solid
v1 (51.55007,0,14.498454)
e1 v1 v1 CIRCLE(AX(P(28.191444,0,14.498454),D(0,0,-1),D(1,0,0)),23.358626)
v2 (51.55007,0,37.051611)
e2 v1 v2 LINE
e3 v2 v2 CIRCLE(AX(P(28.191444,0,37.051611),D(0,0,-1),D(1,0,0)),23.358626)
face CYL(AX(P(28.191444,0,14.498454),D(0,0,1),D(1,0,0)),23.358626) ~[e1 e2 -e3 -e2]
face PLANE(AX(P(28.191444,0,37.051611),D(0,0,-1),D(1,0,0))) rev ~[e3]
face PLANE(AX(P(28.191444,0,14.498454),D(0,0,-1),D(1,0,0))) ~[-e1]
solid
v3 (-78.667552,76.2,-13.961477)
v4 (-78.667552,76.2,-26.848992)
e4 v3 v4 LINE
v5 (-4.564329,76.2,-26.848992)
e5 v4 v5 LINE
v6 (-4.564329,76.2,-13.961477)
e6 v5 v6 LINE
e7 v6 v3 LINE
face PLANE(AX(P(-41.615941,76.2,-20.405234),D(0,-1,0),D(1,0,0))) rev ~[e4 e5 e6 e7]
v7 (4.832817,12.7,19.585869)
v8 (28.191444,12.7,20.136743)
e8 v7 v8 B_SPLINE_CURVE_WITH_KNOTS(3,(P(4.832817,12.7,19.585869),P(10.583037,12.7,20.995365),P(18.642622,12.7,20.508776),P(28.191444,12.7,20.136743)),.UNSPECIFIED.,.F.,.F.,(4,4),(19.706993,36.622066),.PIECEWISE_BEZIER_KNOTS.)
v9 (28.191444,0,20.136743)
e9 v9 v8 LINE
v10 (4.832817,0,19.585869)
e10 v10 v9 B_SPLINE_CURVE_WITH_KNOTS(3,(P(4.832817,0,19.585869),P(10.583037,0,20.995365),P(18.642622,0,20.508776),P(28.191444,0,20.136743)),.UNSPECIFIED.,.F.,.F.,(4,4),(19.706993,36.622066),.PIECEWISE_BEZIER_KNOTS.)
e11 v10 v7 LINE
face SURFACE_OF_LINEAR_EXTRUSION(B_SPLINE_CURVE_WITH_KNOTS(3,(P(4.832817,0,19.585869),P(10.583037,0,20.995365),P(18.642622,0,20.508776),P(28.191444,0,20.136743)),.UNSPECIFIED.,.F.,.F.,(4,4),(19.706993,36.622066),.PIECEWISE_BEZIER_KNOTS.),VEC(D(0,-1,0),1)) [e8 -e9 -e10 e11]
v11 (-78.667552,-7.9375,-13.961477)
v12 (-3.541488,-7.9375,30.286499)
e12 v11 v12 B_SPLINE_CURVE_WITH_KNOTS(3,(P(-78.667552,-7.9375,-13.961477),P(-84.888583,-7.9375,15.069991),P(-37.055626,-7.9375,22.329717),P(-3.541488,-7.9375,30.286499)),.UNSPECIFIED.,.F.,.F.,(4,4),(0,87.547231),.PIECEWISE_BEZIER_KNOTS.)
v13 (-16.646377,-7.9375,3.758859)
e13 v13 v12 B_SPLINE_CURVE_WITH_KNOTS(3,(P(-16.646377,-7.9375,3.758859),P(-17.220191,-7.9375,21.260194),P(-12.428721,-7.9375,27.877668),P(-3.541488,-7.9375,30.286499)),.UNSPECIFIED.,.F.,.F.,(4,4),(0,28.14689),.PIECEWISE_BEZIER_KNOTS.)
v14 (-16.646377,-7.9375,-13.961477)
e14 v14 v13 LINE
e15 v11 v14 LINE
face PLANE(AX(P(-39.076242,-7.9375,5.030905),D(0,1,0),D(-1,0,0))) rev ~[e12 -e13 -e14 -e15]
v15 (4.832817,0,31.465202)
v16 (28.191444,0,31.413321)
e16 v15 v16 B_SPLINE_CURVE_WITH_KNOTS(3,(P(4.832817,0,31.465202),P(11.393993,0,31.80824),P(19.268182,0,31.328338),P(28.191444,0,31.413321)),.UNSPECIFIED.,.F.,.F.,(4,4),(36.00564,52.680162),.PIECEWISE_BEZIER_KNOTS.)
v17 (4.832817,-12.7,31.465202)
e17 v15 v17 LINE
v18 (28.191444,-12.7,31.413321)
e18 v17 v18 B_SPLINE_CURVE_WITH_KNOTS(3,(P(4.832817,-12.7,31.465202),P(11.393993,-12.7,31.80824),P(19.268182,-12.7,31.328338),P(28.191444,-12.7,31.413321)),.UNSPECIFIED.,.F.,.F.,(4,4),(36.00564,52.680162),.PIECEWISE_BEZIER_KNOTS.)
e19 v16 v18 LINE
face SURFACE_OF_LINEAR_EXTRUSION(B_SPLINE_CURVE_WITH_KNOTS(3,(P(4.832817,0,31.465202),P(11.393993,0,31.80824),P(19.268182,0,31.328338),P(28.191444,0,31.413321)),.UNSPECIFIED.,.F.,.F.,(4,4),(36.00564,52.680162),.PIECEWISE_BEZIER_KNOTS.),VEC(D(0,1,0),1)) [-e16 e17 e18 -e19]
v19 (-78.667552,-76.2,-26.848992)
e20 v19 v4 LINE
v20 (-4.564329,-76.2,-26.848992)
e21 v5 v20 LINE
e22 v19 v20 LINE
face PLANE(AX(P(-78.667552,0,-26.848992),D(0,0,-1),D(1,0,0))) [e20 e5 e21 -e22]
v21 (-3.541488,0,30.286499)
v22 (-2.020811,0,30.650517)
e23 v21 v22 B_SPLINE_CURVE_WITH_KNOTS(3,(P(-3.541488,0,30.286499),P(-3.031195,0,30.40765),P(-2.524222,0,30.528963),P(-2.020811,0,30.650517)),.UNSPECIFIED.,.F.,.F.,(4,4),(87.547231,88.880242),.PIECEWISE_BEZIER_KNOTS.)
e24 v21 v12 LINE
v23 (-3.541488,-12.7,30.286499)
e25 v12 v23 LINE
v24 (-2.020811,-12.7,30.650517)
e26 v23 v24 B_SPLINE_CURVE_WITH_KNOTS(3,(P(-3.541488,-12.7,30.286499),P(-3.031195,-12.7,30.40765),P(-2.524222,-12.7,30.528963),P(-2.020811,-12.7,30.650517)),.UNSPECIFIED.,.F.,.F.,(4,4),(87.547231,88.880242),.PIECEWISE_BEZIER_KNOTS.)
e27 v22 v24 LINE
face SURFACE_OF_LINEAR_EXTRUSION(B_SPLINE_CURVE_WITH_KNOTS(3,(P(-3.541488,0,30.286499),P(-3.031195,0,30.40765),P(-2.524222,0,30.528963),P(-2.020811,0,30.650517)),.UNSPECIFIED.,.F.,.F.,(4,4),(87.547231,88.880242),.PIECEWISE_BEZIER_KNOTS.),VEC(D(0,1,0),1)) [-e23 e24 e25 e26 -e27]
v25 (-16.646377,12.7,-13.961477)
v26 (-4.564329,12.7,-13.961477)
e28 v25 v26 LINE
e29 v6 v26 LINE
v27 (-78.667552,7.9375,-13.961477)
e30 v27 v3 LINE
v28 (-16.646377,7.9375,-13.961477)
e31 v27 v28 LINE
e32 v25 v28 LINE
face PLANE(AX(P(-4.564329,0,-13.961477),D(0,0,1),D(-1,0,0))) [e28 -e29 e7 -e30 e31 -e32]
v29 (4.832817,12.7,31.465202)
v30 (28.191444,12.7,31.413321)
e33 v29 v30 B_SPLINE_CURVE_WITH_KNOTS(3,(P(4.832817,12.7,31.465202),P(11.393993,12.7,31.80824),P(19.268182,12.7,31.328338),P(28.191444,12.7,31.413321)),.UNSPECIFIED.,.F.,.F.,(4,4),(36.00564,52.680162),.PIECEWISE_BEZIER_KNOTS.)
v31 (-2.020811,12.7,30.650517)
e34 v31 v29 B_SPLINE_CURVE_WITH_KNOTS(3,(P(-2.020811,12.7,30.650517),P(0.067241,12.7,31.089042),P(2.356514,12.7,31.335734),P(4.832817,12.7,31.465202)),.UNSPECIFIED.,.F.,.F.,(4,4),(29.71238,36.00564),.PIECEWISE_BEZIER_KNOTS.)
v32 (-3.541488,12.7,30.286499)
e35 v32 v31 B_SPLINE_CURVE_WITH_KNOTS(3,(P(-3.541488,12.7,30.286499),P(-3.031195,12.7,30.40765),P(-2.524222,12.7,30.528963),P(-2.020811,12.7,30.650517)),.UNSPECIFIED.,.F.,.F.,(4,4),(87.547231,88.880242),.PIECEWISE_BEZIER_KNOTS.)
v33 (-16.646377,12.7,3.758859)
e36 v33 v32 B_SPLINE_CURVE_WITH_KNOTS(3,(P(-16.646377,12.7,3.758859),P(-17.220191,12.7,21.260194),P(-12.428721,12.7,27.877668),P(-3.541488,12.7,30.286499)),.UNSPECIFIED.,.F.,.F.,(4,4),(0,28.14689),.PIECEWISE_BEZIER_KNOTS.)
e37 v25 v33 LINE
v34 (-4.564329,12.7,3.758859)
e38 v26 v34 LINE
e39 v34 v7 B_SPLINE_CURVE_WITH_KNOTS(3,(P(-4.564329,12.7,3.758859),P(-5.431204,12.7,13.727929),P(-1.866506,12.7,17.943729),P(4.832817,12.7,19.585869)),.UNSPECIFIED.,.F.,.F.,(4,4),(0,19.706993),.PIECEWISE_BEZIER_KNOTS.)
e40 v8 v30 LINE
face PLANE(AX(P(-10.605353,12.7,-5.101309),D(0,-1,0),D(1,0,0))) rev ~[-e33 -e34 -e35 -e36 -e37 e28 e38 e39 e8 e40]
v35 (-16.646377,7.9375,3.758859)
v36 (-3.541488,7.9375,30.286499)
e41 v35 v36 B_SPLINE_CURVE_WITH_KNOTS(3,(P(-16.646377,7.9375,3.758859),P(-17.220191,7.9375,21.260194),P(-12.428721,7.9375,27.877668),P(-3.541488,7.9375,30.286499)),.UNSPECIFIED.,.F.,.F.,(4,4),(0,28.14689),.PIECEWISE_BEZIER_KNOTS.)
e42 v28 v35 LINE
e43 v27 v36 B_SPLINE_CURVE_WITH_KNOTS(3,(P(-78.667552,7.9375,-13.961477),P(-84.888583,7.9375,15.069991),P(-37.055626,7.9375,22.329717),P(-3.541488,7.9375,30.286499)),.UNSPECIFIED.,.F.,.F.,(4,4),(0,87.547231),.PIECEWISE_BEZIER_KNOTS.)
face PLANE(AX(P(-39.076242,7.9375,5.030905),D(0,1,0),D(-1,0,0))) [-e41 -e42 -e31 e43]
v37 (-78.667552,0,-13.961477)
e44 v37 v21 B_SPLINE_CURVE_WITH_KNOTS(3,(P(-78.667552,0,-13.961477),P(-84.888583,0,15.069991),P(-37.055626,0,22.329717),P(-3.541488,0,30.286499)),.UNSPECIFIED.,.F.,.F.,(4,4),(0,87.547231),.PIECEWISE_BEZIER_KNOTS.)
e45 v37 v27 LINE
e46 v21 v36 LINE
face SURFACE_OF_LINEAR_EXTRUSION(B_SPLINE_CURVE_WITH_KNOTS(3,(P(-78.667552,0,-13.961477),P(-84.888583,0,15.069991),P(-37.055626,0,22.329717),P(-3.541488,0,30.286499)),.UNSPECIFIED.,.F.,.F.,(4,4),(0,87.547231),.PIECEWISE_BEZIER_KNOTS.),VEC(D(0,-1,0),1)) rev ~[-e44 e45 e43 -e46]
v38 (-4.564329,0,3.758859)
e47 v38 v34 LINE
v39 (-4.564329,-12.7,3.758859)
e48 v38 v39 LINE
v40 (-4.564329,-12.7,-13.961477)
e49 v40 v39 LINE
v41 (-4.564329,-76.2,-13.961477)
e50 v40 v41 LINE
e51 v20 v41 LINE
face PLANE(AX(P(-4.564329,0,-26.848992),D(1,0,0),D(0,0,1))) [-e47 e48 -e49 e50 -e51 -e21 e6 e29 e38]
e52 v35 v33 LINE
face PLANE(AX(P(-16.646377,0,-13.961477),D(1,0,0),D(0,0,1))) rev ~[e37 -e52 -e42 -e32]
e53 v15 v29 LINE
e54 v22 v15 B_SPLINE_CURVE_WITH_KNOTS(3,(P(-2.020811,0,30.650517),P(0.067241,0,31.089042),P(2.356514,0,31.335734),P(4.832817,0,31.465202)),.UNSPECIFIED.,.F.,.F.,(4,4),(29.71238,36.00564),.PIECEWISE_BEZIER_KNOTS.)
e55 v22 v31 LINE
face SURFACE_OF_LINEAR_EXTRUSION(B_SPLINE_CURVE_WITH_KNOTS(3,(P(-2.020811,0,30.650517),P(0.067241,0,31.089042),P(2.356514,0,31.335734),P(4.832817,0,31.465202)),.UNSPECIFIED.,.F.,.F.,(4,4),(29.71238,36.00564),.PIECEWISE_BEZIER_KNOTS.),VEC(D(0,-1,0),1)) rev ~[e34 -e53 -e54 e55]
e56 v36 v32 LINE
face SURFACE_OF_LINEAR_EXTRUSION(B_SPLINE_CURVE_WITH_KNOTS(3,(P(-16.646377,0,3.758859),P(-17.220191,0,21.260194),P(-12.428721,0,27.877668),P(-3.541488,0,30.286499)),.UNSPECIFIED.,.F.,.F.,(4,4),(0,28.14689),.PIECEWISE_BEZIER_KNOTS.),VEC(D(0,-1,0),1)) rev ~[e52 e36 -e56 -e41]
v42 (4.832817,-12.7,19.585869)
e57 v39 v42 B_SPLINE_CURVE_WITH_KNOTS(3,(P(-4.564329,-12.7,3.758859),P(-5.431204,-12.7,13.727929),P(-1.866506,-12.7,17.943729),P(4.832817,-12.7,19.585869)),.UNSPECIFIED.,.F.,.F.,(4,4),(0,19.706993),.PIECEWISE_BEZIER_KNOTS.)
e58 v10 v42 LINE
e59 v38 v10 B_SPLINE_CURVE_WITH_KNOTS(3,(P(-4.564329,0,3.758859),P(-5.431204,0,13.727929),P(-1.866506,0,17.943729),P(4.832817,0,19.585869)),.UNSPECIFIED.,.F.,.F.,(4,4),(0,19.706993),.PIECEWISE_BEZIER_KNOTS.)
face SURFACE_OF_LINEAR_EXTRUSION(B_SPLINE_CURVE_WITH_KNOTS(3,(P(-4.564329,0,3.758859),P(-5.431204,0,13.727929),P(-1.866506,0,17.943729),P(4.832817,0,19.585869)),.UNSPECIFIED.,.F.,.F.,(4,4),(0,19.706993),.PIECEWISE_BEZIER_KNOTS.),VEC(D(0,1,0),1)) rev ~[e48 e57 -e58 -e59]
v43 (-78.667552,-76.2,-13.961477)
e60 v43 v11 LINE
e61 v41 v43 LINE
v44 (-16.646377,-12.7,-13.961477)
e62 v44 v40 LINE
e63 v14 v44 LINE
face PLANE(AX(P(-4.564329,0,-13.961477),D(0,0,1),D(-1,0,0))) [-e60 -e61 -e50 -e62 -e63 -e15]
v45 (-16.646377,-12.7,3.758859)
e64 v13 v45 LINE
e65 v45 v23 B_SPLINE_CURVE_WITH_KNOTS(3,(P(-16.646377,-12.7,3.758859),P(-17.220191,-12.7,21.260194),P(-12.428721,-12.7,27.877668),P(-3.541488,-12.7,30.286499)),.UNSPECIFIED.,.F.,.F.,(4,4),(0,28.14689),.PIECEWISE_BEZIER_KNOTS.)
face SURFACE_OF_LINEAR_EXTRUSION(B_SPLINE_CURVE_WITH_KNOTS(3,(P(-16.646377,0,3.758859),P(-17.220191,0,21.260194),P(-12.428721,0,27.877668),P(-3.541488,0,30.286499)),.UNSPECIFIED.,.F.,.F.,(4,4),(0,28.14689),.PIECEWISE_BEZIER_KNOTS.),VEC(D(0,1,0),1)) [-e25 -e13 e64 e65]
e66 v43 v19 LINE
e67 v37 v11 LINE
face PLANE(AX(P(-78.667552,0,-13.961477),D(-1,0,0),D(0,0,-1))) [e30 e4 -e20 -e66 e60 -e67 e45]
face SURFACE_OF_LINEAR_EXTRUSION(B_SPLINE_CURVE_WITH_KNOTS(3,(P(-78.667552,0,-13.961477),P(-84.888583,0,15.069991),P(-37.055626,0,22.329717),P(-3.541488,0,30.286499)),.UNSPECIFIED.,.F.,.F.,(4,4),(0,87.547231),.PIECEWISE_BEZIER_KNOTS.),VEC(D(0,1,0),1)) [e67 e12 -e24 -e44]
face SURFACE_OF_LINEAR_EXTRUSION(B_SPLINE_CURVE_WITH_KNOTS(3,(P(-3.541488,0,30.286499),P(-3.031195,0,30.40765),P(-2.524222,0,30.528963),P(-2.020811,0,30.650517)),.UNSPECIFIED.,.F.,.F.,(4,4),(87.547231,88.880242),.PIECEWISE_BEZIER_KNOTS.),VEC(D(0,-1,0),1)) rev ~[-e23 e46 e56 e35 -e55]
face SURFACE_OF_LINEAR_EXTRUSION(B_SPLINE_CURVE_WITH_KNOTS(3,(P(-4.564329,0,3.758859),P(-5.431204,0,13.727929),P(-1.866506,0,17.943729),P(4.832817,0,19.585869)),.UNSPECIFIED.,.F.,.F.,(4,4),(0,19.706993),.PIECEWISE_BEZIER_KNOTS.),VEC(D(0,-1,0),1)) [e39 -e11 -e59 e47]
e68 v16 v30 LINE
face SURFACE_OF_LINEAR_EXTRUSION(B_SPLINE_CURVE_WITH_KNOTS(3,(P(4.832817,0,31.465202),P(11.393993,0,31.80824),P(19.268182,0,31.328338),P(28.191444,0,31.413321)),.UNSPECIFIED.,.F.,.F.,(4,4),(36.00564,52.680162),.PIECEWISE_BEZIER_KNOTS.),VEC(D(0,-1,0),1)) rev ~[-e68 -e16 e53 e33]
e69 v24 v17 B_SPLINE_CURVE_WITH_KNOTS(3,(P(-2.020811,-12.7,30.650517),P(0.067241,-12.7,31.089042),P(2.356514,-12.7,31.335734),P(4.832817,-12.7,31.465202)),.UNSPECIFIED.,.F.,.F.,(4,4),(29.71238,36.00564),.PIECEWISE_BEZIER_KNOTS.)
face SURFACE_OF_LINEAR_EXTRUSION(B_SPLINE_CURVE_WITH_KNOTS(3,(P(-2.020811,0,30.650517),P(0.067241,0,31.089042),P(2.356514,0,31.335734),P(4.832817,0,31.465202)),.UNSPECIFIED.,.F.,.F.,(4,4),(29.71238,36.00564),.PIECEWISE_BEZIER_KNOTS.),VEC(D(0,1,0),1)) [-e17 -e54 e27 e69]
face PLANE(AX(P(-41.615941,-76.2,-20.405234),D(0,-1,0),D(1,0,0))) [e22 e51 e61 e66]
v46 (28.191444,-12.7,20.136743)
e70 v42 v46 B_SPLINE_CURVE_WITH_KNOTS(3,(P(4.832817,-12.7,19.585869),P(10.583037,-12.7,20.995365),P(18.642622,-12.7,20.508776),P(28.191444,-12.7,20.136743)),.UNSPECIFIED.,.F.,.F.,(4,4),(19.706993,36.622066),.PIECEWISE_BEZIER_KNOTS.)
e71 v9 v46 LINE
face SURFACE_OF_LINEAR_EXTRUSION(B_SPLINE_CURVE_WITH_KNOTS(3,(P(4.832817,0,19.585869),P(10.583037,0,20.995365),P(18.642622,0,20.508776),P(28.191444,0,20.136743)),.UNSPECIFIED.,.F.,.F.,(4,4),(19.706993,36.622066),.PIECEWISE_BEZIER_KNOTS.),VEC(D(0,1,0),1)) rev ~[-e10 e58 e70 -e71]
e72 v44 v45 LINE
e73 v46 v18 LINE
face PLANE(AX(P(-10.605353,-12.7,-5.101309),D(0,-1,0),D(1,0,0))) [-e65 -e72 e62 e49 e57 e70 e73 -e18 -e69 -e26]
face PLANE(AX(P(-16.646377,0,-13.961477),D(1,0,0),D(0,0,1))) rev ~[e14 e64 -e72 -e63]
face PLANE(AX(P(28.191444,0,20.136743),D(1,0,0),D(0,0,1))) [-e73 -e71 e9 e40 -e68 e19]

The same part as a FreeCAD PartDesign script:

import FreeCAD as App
import Part
import Sketcher
from FreeCAD import Vector
Q = App.Units.Quantity


def add_polygon(sketch, points):
    """Adds a closed chain of lines whose ends are joined by coincident constraints."""
    first, n = sketch.GeometryCount, len(points)
    for a, b in zip(points, points[1:] + points[:1]):
        sketch.addGeometry(Part.LineSegment(App.Vector(*a, 0), App.Vector(*b, 0)), False)
    for i in range(n):
        sketch.addConstraint(Sketcher.Constraint("Coincident", first + i, 2, first + (i + 1) % n, 1))

doc = App.newDocument("Part")
body = doc.addObject("PartDesign::Body", "Body")

sketch1 = body.newObject("Sketcher::SketchObject", "Sketch")
sketch1.AttachmentSupport = (doc.getObject("XZ_Plane"), [""])
sketch1.MapMode = "FlatFace"
sketch1.addGeometry(Part.BSplineCurve([Vector(-78.667552, -13.961477, 0), Vector(-84.888583, 15.069991, 0), Vector(-37.055626, 22.329717, 0), Vector(-3.541488, 30.286499, 0)], [4, 4], [0, 87.547231], False, 3, [1, 1, 1, 1], False), False)
sketch1.addGeometry(Part.LineSegment(Vector(-78.667552, -13.961477, 0), Vector(-16.646377, -13.961477, 0)), False)
sketch1.addGeometry(Part.LineSegment(Vector(-16.646377, -13.961477, 0), Vector(-16.646377, 3.758859, 0)), False)
sketch1.addGeometry(Part.BSplineCurve([Vector(-16.646377, 3.758859, 0), Vector(-17.220191, 21.260194, 0), Vector(-12.428721, 27.877668, 0), Vector(-3.541488, 30.286499, 0)], [4, 4], [0, 28.14689], False, 3, [1, 1, 1, 1], False), False)
sketch1.addConstraint(Sketcher.Constraint("Block", 0))
sketch1.addConstraint(Sketcher.Constraint("Block", 3))
sketch1.addConstraint(Sketcher.Constraint("Coincident", 0, 1, 1, 1))
sketch1.addConstraint(Sketcher.Constraint("Coincident", 1, 2, 2, 1))
sketch1.addConstraint(Sketcher.Constraint("Coincident", 2, 2, 3, 1))
sketch1.addConstraint(Sketcher.Constraint("Horizontal", 1))
sketch1.addConstraint(Sketcher.Constraint("Vertical", 2))
pad1 = body.newObject("PartDesign::Pad", "Pad")
pad1.Profile = sketch1
pad1.Length = Q("0.625 in")
pad1.Midplane = True

sketch2 = body.newObject("Sketcher::SketchObject", "Sketch001")
sketch2.AttachmentSupport = (doc.getObject("XZ_Plane"), [""])
sketch2.MapMode = "FlatFace"
add_polygon(sketch2, [(-79, -27), (-5, -27), (-5, -14), (-79, -14)])
sketch2.addConstraint(Sketcher.Constraint("Horizontal", 0))
sketch2.addConstraint(Sketcher.Constraint("Vertical", 1))
sketch2.addConstraint(Sketcher.Constraint("Horizontal", 2))
sketch2.addConstraint(Sketcher.Constraint("Vertical", 3))
sketch2.addConstraint(Sketcher.Constraint("DistanceX", 0, 1, 0, 2, 74.103223))
sketch2.addConstraint(Sketcher.Constraint("DistanceY", 1, 1, 1, 2, 12.887515))
sketch2.addConstraint(Sketcher.Constraint("DistanceX", 0, 2, -1, 1, 4.564329))
sketch2.addConstraint(Sketcher.Constraint("DistanceY", 0, 2, -1, 1, 26.848992))
pad2 = body.newObject("PartDesign::Pad", "Pad001")
pad2.Profile = sketch2
pad2.Length = Q("6 in")
pad2.Midplane = True

sketch3 = body.newObject("Sketcher::SketchObject", "Sketch002")
sketch3.AttachmentSupport = (doc.getObject("XZ_Plane"), [""])
sketch3.MapMode = "FlatFace"
sketch3.addGeometry(Part.LineSegment(Vector(-16.646377, 3.758859, 0), Vector(-16.646377, -13.961477, 0)), False)
sketch3.addGeometry(Part.LineSegment(Vector(-16.646377, -13.961477, 0), Vector(-4.564329, -13.961477, 0)), False)
sketch3.addGeometry(Part.LineSegment(Vector(-4.564329, -13.961477, 0), Vector(-4.564329, 3.758859, 0)), False)
sketch3.addGeometry(Part.BSplineCurve([Vector(-4.564329, 3.758859, 0), Vector(-5.431204, 13.727929, 0), Vector(-1.866506, 17.943729, 0), Vector(4.832817, 19.585869, 0)], [4, 4], [0, 19.706993], False, 3, [1, 1, 1, 1], False), False)
sketch3.addGeometry(Part.BSplineCurve([Vector(4.832817, 19.585869, 0), Vector(10.583037, 20.995365, 0), Vector(18.642622, 20.508776, 0), Vector(28.191444, 20.136743, 0)], [4, 4], [19.706993, 36.622066], False, 3, [1, 1, 1, 1], False), False)
sketch3.addGeometry(Part.LineSegment(Vector(28.191444, 20.136743, 0), Vector(28.191444, 31.413321, 0)), False)
sketch3.addGeometry(Part.BSplineCurve([Vector(4.832817, 31.465202, 0), Vector(11.393993, 31.80824, 0), Vector(19.268182, 31.328338, 0), Vector(28.191444, 31.413321, 0)], [4, 4], [36.00564, 52.680162], False, 3, [1, 1, 1, 1], False), False)
sketch3.addGeometry(Part.BSplineCurve([Vector(-2.020811, 30.650517, 0), Vector(0.067241, 31.089042, 0), Vector(2.356514, 31.335734, 0), Vector(4.832817, 31.465202, 0)], [4, 4], [29.71238, 36.00564], False, 3, [1, 1, 1, 1], False), False)
sketch3.addGeometry(Part.BSplineCurve([Vector(-3.541488, 30.286499, 0), Vector(-3.031195, 30.40765, 0), Vector(-2.524222, 30.528963, 0), Vector(-2.020811, 30.650517, 0)], [4, 4], [87.547231, 88.880242], False, 3, [1, 1, 1, 1], False), False)
sketch3.addGeometry(Part.BSplineCurve([Vector(-16.646377, 3.758859, 0), Vector(-17.220191, 21.260194, 0), Vector(-12.428721, 27.877668, 0), Vector(-3.541488, 30.286499, 0)], [4, 4], [0, 28.14689], False, 3, [1, 1, 1, 1], False), False)
sketch3.addConstraint(Sketcher.Constraint("Block", 3))
sketch3.addConstraint(Sketcher.Constraint("Block", 4))
sketch3.addConstraint(Sketcher.Constraint("Block", 6))
sketch3.addConstraint(Sketcher.Constraint("Block", 7))
sketch3.addConstraint(Sketcher.Constraint("Block", 8))
sketch3.addConstraint(Sketcher.Constraint("Block", 9))
sketch3.addConstraint(Sketcher.Constraint("Coincident", 0, 2, 1, 1))
sketch3.addConstraint(Sketcher.Constraint("Coincident", 1, 2, 2, 1))
sketch3.addConstraint(Sketcher.Constraint("Coincident", 2, 2, 3, 1))
sketch3.addConstraint(Sketcher.Constraint("Coincident", 4, 2, 5, 1))
sketch3.addConstraint(Sketcher.Constraint("Coincident", 5, 2, 6, 2))
sketch3.addConstraint(Sketcher.Constraint("Coincident", 9, 1, 0, 1))
sketch3.addConstraint(Sketcher.Constraint("Vertical", 0))
sketch3.addConstraint(Sketcher.Constraint("Horizontal", 1))
sketch3.addConstraint(Sketcher.Constraint("Vertical", 2))
sketch3.addConstraint(Sketcher.Constraint("DistanceY", 0, 2, 0, 1, 17.720336))
pad3 = body.newObject("PartDesign::Pad", "Pad002")
pad3.Profile = sketch3
pad3.Length = Q("1 in")
pad3.Midplane = True
body2 = doc.addObject("PartDesign::Body", "Body001")

sketch4 = body2.newObject("Sketcher::SketchObject", "Sketch003")
sketch4.AttachmentSupport = (doc.getObject("XZ_Plane001"), [""])
sketch4.MapMode = "FlatFace"
add_polygon(sketch4, [(28, 14), (52, 14), (52, 37), (28, 37)])
sketch4.addGeometry(Part.LineSegment(Vector(28, 37, 0), Vector(28, 14, 0)), True)
sketch4.addConstraint(Sketcher.Constraint("Horizontal", 0))
sketch4.addConstraint(Sketcher.Constraint("Vertical", 1))
sketch4.addConstraint(Sketcher.Constraint("Horizontal", 2))
sketch4.addConstraint(Sketcher.Constraint("Vertical", 3))
sketch4.addConstraint(Sketcher.Constraint("Vertical", 4))
sketch4.addConstraint(Sketcher.Constraint("Coincident", 4, 1, 2, 2))
sketch4.addConstraint(Sketcher.Constraint("Horizontal", 0, 2, 4, 2))
sketch4.addConstraint(Sketcher.Constraint("DistanceX", 0, 1, 0, 2, 23.358626))
sketch4.addConstraint(Sketcher.Constraint("DistanceY", 1, 1, 1, 2, 22.553157))
sketch4.addConstraint(Sketcher.Constraint("DistanceX", -1, 1, 0, 2, 51.55007))
sketch4.addConstraint(Sketcher.Constraint("DistanceY", -1, 1, 1, 2, 37.051611))
revolution = body2.newObject("PartDesign::Revolution", "Revolution")
revolution.Profile = sketch4
revolution.ReferenceAxis = (sketch4, ["Axis0"])
revolution.Angle = 360

doc.recompute()
